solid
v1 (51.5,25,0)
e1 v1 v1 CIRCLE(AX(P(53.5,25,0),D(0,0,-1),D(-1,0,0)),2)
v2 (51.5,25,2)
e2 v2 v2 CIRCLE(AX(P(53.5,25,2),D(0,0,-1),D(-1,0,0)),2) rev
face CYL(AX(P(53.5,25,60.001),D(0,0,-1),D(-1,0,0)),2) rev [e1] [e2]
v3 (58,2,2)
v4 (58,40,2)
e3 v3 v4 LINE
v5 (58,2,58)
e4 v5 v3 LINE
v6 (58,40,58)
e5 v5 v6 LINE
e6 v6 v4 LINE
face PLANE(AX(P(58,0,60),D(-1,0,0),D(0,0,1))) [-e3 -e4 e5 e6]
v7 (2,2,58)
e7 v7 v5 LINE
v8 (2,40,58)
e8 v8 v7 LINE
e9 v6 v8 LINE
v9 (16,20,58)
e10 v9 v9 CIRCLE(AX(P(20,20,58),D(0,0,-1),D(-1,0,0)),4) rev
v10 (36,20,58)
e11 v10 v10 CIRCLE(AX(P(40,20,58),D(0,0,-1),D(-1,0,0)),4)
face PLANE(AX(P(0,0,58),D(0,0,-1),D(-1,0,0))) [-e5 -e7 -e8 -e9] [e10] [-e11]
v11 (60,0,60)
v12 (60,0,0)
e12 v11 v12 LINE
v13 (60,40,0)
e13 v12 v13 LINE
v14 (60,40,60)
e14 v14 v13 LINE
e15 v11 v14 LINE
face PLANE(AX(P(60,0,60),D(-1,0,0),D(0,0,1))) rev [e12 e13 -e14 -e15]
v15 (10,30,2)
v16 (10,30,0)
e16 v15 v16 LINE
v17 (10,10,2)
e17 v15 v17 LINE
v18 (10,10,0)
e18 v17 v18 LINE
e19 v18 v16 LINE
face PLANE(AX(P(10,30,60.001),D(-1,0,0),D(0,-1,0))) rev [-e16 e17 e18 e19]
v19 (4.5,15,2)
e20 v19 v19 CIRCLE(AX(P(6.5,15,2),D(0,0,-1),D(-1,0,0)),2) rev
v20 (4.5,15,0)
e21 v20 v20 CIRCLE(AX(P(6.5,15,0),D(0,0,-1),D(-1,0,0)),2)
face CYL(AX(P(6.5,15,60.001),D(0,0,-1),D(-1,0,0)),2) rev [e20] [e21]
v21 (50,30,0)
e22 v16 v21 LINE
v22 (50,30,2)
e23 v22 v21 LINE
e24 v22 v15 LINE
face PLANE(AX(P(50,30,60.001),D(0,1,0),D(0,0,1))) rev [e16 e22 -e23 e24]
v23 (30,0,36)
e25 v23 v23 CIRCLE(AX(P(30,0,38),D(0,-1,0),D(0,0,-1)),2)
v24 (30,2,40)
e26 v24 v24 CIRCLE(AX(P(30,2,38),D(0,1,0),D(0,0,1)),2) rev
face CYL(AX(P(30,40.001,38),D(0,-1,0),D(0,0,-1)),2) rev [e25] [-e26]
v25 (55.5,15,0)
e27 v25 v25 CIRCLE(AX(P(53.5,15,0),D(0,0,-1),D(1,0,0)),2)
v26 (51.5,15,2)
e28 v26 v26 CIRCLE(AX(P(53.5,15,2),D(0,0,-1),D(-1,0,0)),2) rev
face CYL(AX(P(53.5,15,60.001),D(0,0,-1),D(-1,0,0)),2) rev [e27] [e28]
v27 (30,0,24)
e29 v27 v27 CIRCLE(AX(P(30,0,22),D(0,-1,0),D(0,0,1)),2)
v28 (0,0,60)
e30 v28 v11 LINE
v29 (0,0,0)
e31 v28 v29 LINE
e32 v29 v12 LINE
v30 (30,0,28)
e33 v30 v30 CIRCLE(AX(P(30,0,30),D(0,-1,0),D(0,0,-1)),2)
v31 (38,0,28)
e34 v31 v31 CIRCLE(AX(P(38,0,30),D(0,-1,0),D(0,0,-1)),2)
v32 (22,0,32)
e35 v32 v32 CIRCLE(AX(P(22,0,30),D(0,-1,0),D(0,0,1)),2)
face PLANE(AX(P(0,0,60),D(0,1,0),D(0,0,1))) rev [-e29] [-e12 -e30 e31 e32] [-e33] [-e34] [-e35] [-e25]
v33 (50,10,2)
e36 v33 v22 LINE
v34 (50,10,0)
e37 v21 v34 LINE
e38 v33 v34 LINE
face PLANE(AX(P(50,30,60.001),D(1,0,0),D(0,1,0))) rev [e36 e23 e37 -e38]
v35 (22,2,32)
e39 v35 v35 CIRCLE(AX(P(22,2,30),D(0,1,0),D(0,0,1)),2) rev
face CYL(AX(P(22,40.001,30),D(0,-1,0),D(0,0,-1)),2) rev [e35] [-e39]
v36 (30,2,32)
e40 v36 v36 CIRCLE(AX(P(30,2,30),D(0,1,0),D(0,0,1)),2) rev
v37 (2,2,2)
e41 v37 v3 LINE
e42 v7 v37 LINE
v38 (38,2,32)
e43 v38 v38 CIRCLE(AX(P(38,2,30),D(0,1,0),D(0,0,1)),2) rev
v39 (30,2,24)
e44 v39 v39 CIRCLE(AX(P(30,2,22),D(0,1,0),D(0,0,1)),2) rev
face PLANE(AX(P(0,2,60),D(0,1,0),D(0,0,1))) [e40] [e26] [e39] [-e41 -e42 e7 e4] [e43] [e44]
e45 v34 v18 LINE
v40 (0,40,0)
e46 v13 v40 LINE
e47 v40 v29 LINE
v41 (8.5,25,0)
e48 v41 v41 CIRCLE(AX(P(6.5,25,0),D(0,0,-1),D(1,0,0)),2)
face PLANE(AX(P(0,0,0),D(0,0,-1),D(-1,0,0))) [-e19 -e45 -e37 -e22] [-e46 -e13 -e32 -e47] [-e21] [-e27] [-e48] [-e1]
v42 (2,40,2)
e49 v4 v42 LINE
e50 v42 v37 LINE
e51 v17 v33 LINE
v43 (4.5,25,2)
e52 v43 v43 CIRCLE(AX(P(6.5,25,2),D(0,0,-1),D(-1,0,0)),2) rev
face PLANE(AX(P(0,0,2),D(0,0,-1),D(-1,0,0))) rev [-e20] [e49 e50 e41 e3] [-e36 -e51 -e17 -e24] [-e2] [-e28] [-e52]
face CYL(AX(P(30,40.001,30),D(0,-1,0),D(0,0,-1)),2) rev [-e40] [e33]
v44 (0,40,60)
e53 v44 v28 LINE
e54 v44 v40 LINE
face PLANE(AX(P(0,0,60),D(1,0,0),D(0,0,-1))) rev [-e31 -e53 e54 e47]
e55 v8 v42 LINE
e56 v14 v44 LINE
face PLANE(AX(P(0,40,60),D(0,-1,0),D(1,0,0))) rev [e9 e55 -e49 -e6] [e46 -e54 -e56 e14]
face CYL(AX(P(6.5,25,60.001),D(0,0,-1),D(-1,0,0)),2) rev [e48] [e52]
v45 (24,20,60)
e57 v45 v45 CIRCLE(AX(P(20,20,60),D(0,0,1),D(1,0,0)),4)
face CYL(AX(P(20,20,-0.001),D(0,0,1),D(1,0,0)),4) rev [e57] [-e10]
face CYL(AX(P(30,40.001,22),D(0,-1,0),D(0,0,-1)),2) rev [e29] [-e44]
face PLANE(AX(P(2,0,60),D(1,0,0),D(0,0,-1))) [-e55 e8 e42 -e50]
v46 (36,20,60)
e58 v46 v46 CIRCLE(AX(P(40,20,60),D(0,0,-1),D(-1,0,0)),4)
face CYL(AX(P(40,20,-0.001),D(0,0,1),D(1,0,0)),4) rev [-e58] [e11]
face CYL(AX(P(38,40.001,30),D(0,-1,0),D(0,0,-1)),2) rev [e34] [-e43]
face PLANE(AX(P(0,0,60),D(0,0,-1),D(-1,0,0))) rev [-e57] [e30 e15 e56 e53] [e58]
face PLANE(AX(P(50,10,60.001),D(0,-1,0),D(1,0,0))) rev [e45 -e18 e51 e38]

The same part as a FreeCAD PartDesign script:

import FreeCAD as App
import Part
import Sketcher
from FreeCAD import Vector
Q = App.Units.Quantity


def faces_at(feature, points):
    """Names of the faces that lie closest to the given points."""
    faces = feature.Shape.Faces
    near = lambda p: min(range(len(faces)), key=lambda i: faces[i].distToShape(Part.Vertex(*p))[0])
    return sorted({f"Face{near(p) + 1}" for p in points})


def add_polygon(sketch, points):
    """Adds a closed chain of lines whose ends are joined by coincident constraints."""
    first, n = sketch.GeometryCount, len(points)
    for a, b in zip(points, points[1:] + points[:1]):
        sketch.addGeometry(Part.LineSegment(App.Vector(*a, 0), App.Vector(*b, 0)), False)
    for i in range(n):
        sketch.addConstraint(Sketcher.Constraint("Coincident", first + i, 2, first + (i + 1) % n, 1))

doc = App.newDocument("Part")
body = doc.addObject("PartDesign::Body", "Body")

sketch1 = body.newObject("Sketcher::SketchObject", "Sketch")
sketch1.AttachmentSupport = (doc.getObject("XY_Plane"), [""])
sketch1.MapMode = "FlatFace"
add_polygon(sketch1, [(0, 40), (0, 0), (60, 0), (60, 40)])
sketch1.addConstraint([
    Sketcher.Constraint("Vertical", 0),
    Sketcher.Constraint("Horizontal", 1),
    Sketcher.Constraint("Vertical", 2),
    Sketcher.Constraint("Horizontal", 3),
    Sketcher.Constraint("Coincident", 0, 2, -1, 1),
    Sketcher.Constraint("DistanceX", 1, 1, 1, 2, Q("60 mm")),
    Sketcher.Constraint("DistanceY", 0, 2, 0, 1, Q("40 mm")),
])
pad1 = body.newObject("PartDesign::Pad", "Pad")
pad1.Profile = sketch1
pad1.Length = 60
doc.recompute()

thickness = body.newObject("PartDesign::Thickness", "Thickness")
thickness.Base = (pad1, faces_at(pad1, [(30, 40, 30)]))
thickness.Value = 2
thickness.Reversed = True
thickness.Join = "Intersection"

sketch2 = body.newObject("Sketcher::SketchObject", "Sketch001")
sketch2.AttachmentSupport = (doc.getObject("XY_Plane"), [""])
sketch2.MapMode = "FlatFace"
sketch2.addGeometry(Part.Circle(Vector(53.5, 25, 0), Vector(0, 0, 1), 2), False)
sketch2.addConstraint([
    Sketcher.Constraint("Diameter", 0, Q("4 mm")),
    Sketcher.Constraint("DistanceY", -1, 1, 0, 3, Q("25 mm")),
    Sketcher.Constraint("DistanceX", -1, 1, 0, 3, Q("53.5 mm")),
])
pocket1 = body.newObject("PartDesign::Pocket", "Pocket")
pocket1.Profile = sketch2
pocket1.Type = "UpToFirst"
pocket1.Reversed = True

sketch3 = body.newObject("Sketcher::SketchObject", "Sketch002")
sketch3.AttachmentSupport = (doc.getObject("XY_Plane"), [""])
sketch3.MapMode = "FlatFace"
sketch3.addGeometry(Part.Circle(Vector(53.5, 15, 0), Vector(0, 0, 1), 2), False)
sketch3.addConstraint([
    Sketcher.Constraint("Diameter", 0, Q("4 mm")),
    Sketcher.Constraint("DistanceY", -1, 1, 0, 3, Q("15 mm")),
    Sketcher.Constraint("DistanceX", -1, 1, 0, 3, Q("53.5 mm")),
])
pocket2 = body.newObject("PartDesign::Pocket", "Pocket001")
pocket2.Profile = sketch3
pocket2.Type = "UpToFirst"
pocket2.Reversed = True

sketch4 = body.newObject("Sketcher::SketchObject", "Sketch003")
sketch4.AttachmentSupport = (doc.getObject("XY_Plane"), [""])
sketch4.MapMode = "FlatFace"
sketch4.addGeometry(Part.Circle(Vector(6.5, 15, 0), Vector(0, 0, 1), 2), False)
sketch4.addConstraint([
    Sketcher.Constraint("Diameter", 0, Q("4 mm")),
    Sketcher.Constraint("DistanceY", -1, 1, 0, 3, Q("15 mm")),
    Sketcher.Constraint("DistanceX", -1, 1, 0, 3, Q("6.5 mm")),
])
pocket3 = body.newObject("PartDesign::Pocket", "Pocket002")
pocket3.Profile = sketch4
pocket3.Type = "UpToFirst"
pocket3.Reversed = True

sketch5 = body.newObject("Sketcher::SketchObject", "Sketch004")
sketch5.AttachmentSupport = (doc.getObject("XY_Plane"), [""])
sketch5.MapMode = "FlatFace"
sketch5.addGeometry(Part.Circle(Vector(6.5, 25, 0), Vector(0, 0, 1), 2), False)
sketch5.addConstraint([
    Sketcher.Constraint("Diameter", 0, Q("4 mm")),
    Sketcher.Constraint("DistanceY", -1, 1, 0, 3, Q("25 mm")),
    Sketcher.Constraint("DistanceX", -1, 1, 0, 3, Q("6.5 mm")),
])
pocket4 = body.newObject("PartDesign::Pocket", "Pocket003")
pocket4.Profile = sketch5
pocket4.Type = "UpToFirst"
pocket4.Reversed = True

sketch6 = body.newObject("Sketcher::SketchObject", "Sketch005")
sketch6.AttachmentSupport = (doc.getObject("XY_Plane"), [""])
sketch6.MapMode = "FlatFace"
add_polygon(sketch6, [(50, 30), (50, 10), (10, 10), (10, 30)])
sketch6.addConstraint([
    Sketcher.Constraint("Vertical", 0),
    Sketcher.Constraint("Horizontal", 1),
    Sketcher.Constraint("Vertical", 2),
    Sketcher.Constraint("Horizontal", 3),
    Sketcher.Constraint("DistanceX", 1, 2, 1, 1, Q("40 mm")),
    Sketcher.Constraint("DistanceY", 0, 2, 0, 1, Q("20 mm")),
    Sketcher.Constraint("DistanceX", -1, 1, 0, 2, Q("50 mm")),
    Sketcher.Constraint("DistanceY", -1, 1, 0, 2, Q("10 mm")),
])
pocket5 = body.newObject("PartDesign::Pocket", "Pocket004")
pocket5.Profile = sketch6
pocket5.Type = "UpToFirst"
pocket5.Reversed = True

sketch7 = body.newObject("Sketcher::SketchObject", "Sketch006")
sketch7.AttachmentSupport = (doc.getObject("XZ_Plane"), [""])
sketch7.MapMode = "FlatFace"
sketch7.addGeometry(Part.Circle(Vector(30, 30, 0), Vector(0, 0, 1), 2), False)
sketch7.addConstraint([
    Sketcher.Constraint("Diameter", 0, Q("4 mm")),
    Sketcher.Constraint("DistanceX", -1, 1, 0, 3, Q("30 mm")),
    Sketcher.Constraint("DistanceY", -1, 1, 0, 3, Q("30 mm")),
])
pocket6 = body.newObject("PartDesign::Pocket", "Pocket005")
pocket6.Profile = sketch7
pocket6.Type = "UpToFirst"

sketch8 = body.newObject("Sketcher::SketchObject", "Sketch007")
sketch8.AttachmentSupport = (doc.getObject("XZ_Plane"), [""])
sketch8.MapMode = "FlatFace"
sketch8.addGeometry(Part.Circle(Vector(38, 30, 0), Vector(0, 0, 1), 2), False)
sketch8.addConstraint([
    Sketcher.Constraint("Diameter", 0, Q("4 mm")),
    Sketcher.Constraint("DistanceX", -1, 1, 0, 3, Q("38 mm")),
    Sketcher.Constraint("DistanceY", -1, 1, 0, 3, Q("30 mm")),
])
pocket7 = body.newObject("PartDesign::Pocket", "Pocket006")
pocket7.Profile = sketch8
pocket7.Type = "UpToFirst"

sketch9 = body.newObject("Sketcher::SketchObject", "Sketch008")
sketch9.AttachmentSupport = (doc.getObject("XZ_Plane"), [""])
sketch9.MapMode = "FlatFace"
sketch9.addGeometry(Part.Circle(Vector(30, 38, 0), Vector(0, 0, 1), 2), False)
sketch9.addConstraint([
    Sketcher.Constraint("Diameter", 0, Q("4 mm")),
    Sketcher.Constraint("DistanceX", -1, 1, 0, 3, Q("30 mm")),
    Sketcher.Constraint("DistanceY", -1, 1, 0, 3, Q("38 mm")),
])
pocket8 = body.newObject("PartDesign::Pocket", "Pocket007")
pocket8.Profile = sketch9
pocket8.Type = "UpToFirst"

sketch10 = body.newObject("Sketcher::SketchObject", "Sketch009")
sketch10.AttachmentSupport = (doc.getObject("XZ_Plane"), [""])
sketch10.MapMode = "FlatFace"
sketch10.addGeometry(Part.Circle(Vector(30, 22, 0), Vector(0, 0, 1), 2), False)
sketch10.addConstraint([
    Sketcher.Constraint("Diameter", 0, Q("4 mm")),
    Sketcher.Constraint("DistanceX", -1, 1, 0, 3, Q("30 mm")),
    Sketcher.Constraint("DistanceY", -1, 1, 0, 3, Q("22 mm")),
])
pocket9 = body.newObject("PartDesign::Pocket", "Pocket008")
pocket9.Profile = sketch10
pocket9.Type = "UpToFirst"

sketch11 = body.newObject("Sketcher::SketchObject", "Sketch010")
sketch11.AttachmentSupport = (doc.getObject("XZ_Plane"), [""])
sketch11.MapMode = "FlatFace"
sketch11.addGeometry(Part.Circle(Vector(22, 30, 0), Vector(0, 0, 1), 2), False)
sketch11.addConstraint([
    Sketcher.Constraint("Diameter", 0, Q("4 mm")),
    Sketcher.Constraint("DistanceX", -1, 1, 0, 3, Q("22 mm")),
    Sketcher.Constraint("DistanceY", -1, 1, 0, 3, Q("30 mm")),
])
pocket10 = body.newObject("PartDesign::Pocket", "Pocket009")
pocket10.Profile = sketch11
pocket10.Type = "UpToFirst"

sketch12 = body.newObject("Sketcher::SketchObject", "Sketch011")
sketch12.AttachmentSupport = (doc.getObject("XY_Plane"), [""])
sketch12.MapMode = "FlatFace"
sketch12.AttachmentOffset = App.Placement(Vector(0, 0, 60), App.Rotation())
sketch12.addGeometry(Part.Circle(Vector(20, 20, 0), Vector(0, 0, 1), 4), False)
sketch12.addConstraint([
    Sketcher.Constraint("Diameter", 0, Q("8 mm")),
    Sketcher.Constraint("DistanceX", -1, 1, 0, 3, Q("20 mm")),
    Sketcher.Constraint("DistanceY", -1, 1, 0, 3, Q("20 mm")),
])
pocket11 = body.newObject("PartDesign::Pocket", "Pocket010")
pocket11.Profile = sketch12
pocket11.Type = "UpToFirst"

sketch13 = body.newObject("Sketcher::SketchObject", "Sketch012")
sketch13.AttachmentSupport = (doc.getObject("XY_Plane"), [""])
sketch13.MapMode = "FlatFace"
sketch13.AttachmentOffset = App.Placement(Vector(0, 0, 60), App.Rotation())
sketch13.addGeometry(Part.Circle(Vector(40, 20, 0), Vector(0, 0, 1), 4), False)
sketch13.addConstraint([
    Sketcher.Constraint("Diameter", 0, Q("8 mm")),
    Sketcher.Constraint("DistanceX", -1, 1, 0, 3, Q("40 mm")),
    Sketcher.Constraint("DistanceY", -1, 1, 0, 3, Q("20 mm")),
])
pocket12 = body.newObject("PartDesign::Pocket", "Pocket011")
pocket12.Profile = sketch13
pocket12.Type = "UpToFirst"

doc.recompute()
